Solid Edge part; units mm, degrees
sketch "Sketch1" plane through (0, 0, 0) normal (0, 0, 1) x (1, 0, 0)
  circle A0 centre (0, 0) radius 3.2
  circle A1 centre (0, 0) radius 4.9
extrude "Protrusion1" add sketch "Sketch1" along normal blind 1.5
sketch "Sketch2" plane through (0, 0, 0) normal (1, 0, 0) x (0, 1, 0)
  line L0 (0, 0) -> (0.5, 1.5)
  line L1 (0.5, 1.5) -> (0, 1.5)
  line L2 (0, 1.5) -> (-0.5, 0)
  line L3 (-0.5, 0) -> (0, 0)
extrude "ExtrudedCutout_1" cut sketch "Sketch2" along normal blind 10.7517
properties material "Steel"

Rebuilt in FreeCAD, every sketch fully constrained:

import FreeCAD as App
import Part
import Sketcher
Q = App.Units.Quantity

doc = App.newDocument("Part")
body = doc.addObject("PartDesign::Body", "Body")

# Sketch on XY plane
sketch1 = doc.addObject("Sketcher::SketchObject", "Sketch")
body.addObject(sketch1)
sketch1.AttachmentSupport = (doc.XY_Plane, [""])
sketch1.MapMode = "FlatFace"
sketch1.addGeometry([
    Part.Circle(App.Vector(0, 0, 0), App.Vector(0, 0, 1), 4.9),
    Part.Circle(App.Vector(0, 0, 0), App.Vector(0, 0, 1), 3.2),
], False)
sketch1.addConstraint([
    Sketcher.Constraint("Coincident", 0, 3, -1, 1),
    Sketcher.Constraint("Coincident", 1, 3, -1, 1),
    Sketcher.Constraint("Diameter", 0, Q("9.8 mm")),
    Sketcher.Constraint("Diameter", 1, Q("6.4 mm")),
])
pad1 = doc.addObject("PartDesign::Pad", "Pad")
body.addObject(pad1)
pad1.Profile = sketch1
pad1.Length = 1.5

# Sketch on YZ plane
sketch2 = doc.addObject("Sketcher::SketchObject", "Sketch001")
body.addObject(sketch2)
sketch2.AttachmentSupport = (doc.YZ_Plane, [""])
sketch2.MapMode = "FlatFace"
sketch2.addGeometry([
    Part.LineSegment(App.Vector(-0.5, 0, 0), App.Vector(0, 0, 0)),
    Part.LineSegment(App.Vector(0, 0, 0), App.Vector(0.5, 1.5, 0)),
    Part.LineSegment(App.Vector(0.5, 1.5, 0), App.Vector(0, 1.5, 0)),
    Part.LineSegment(App.Vector(0, 1.5, 0), App.Vector(-0.5, 0, 0)),
], False)
sketch2.addConstraint([
    Sketcher.Constraint("Coincident", 0, 2, 1, 1),
    Sketcher.Constraint("Coincident", 1, 2, 2, 1),
    Sketcher.Constraint("Coincident", 2, 2, 3, 1),
    Sketcher.Constraint("Coincident", 3, 2, 0, 1),
    Sketcher.Constraint("Horizontal", 0),
    Sketcher.Constraint("Horizontal", 2),
    Sketcher.Constraint("Coincident", 0, 2, -1, 1),
    Sketcher.Constraint("PointOnObject", 2, 2, -2),
    Sketcher.Constraint("Parallel", 1, 3),
    Sketcher.Constraint("DistanceX", 0, 1, 0, 2, Q("0.5 mm")),
    Sketcher.Constraint("DistanceY", -1, 1, 1, 2, Q("1.5 mm")),
])
pocket1 = doc.addObject("PartDesign::Pocket", "Pocket")
body.addObject(pocket1)
pocket1.Profile = sketch2
pocket1.Length = 10.7517
pocket1.Reversed = True

doc.recompute()
